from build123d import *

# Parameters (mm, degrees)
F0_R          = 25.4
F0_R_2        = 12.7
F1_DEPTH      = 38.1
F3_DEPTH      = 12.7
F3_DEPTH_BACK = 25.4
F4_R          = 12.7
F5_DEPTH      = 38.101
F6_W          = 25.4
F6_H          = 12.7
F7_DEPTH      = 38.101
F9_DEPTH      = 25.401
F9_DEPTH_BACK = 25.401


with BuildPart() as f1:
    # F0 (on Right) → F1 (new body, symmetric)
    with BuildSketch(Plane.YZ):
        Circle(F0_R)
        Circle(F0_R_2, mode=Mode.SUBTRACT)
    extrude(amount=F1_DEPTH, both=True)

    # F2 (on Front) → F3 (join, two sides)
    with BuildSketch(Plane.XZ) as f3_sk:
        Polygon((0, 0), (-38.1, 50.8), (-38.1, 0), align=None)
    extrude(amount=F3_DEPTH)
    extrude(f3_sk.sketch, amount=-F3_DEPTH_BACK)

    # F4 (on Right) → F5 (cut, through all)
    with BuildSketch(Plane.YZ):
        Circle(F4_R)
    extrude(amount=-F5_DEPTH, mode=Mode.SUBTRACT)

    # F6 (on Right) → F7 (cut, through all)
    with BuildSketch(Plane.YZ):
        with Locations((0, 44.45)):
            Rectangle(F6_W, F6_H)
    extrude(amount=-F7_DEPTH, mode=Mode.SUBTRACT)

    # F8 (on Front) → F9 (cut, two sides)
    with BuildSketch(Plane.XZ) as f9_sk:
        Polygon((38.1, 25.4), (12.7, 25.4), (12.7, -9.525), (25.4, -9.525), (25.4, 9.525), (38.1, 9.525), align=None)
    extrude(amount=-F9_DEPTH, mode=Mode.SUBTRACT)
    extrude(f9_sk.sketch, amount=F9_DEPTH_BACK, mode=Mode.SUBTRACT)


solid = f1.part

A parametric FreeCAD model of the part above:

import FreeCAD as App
import Part
import Sketcher

V = App.Vector
Q = App.Units.Quantity

doc = App.newDocument("Part")
body = doc.addObject("PartDesign::Body", "Body")

sketch1 = body.newObject("Sketcher::SketchObject", "Sketch")
sketch1.AttachmentSupport = (doc.getObject("YZ_Plane"), [""])
sketch1.MapMode = "FlatFace"
sketch1.addGeometry(Part.Circle(V(0, 0, 0), V(0, 0, 1), 25.4), False)
sketch1.addGeometry(Part.Circle(V(0, 0, 0), V(0, 0, 1), 12.7), False)
sketch1.addConstraint(Sketcher.Constraint("Coincident", 0, 3, -1, 1))
sketch1.addConstraint(Sketcher.Constraint("Coincident", 1, 3, -1, 1))
sketch1.addConstraint(Sketcher.Constraint("Diameter", 0, Q("2 in")))
sketch1.addConstraint(Sketcher.Constraint("Diameter", 1, Q("1 in")))
pad1 = body.newObject("PartDesign::Pad", "Pad")
pad1.Profile = sketch1
pad1.Length = Q("3 in")
pad1.Midplane = True

sketch2 = body.newObject("Sketcher::SketchObject", "Sketch001")
sketch2.AttachmentSupport = (doc.getObject("XZ_Plane"), [""])
sketch2.MapMode = "FlatFace"
sketch2.addGeometry(Part.LineSegment(V(0, 0, 0), V(-38.1, 50.8, 0)), False)
sketch2.addGeometry(Part.LineSegment(V(-38.1, 50.8, 0), V(-38.1, 0, 0)), False)
sketch2.addGeometry(Part.LineSegment(V(-38.1, 0, 0), V(0, 0, 0)), False)
sketch2.addConstraint(Sketcher.Constraint("Coincident", 0, 2, 1, 1))
sketch2.addConstraint(Sketcher.Constraint("Coincident", 1, 2, 2, 1))
sketch2.addConstraint(Sketcher.Constraint("Coincident", 2, 2, 0, 1))
sketch2.addConstraint(Sketcher.Constraint("Vertical", 1))
sketch2.addConstraint(Sketcher.Constraint("Horizontal", 2))
sketch2.addConstraint(Sketcher.Constraint("Coincident", 2, 2, -1, 1))
sketch2.addConstraint(Sketcher.Constraint("DistanceY", 1, 2, 1, 1, Q("2 in")))
sketch2.addConstraint(Sketcher.Constraint("DistanceX", 2, 1, 2, 2, Q("1.5 in")))
pad2 = body.newObject("PartDesign::Pad", "Pad001")
pad2.Profile = sketch2
pad2.Type = "TwoLengths"
pad2.Length = Q("0.5 in")
pad2.Length2 = Q("1 in")

sketch3 = body.newObject("Sketcher::SketchObject", "Sketch002")
sketch3.AttachmentSupport = (doc.getObject("YZ_Plane"), [""])
sketch3.MapMode = "FlatFace"
sketch3.addGeometry(Part.Circle(V(0, 0, 0), V(0, 0, 1), 12.7), False)
sketch3.addConstraint(Sketcher.Constraint("Coincident", 0, 3, -1, 1))
sketch3.addConstraint(Sketcher.Constraint("Diameter", 0, Q("1 in")))
pocket1 = body.newObject("PartDesign::Pocket", "Pocket")
pocket1.Profile = sketch3
pocket1.Type = "ThroughAll"

sketch4 = body.newObject("Sketcher::SketchObject", "Sketch003")
sketch4.AttachmentSupport = (doc.getObject("YZ_Plane"), [""])
sketch4.MapMode = "FlatFace"
sketch4.addGeometry(Part.LineSegment(V(-12.7, 50.8, 0), V(-12.7, 38.1, 0)), False)
sketch4.addGeometry(Part.LineSegment(V(-12.7, 38.1, 0), V(12.7, 38.1, 0)), False)
sketch4.addGeometry(Part.LineSegment(V(12.7, 38.1, 0), V(12.7, 50.8, 0)), False)
sketch4.addGeometry(Part.LineSegment(V(12.7, 50.8, 0), V(-12.7, 50.8, 0)), False)
sketch4.addConstraint(Sketcher.Constraint("Coincident", 0, 2, 1, 1))
sketch4.addConstraint(Sketcher.Constraint("Coincident", 1, 2, 2, 1))
sketch4.addConstraint(Sketcher.Constraint("Coincident", 2, 2, 3, 1))
sketch4.addConstraint(Sketcher.Constraint("Coincident", 3, 2, 0, 1))
sketch4.addConstraint(Sketcher.Constraint("Vertical", 0))
sketch4.addConstraint(Sketcher.Constraint("Horizontal", 1))
sketch4.addConstraint(Sketcher.Constraint("Vertical", 2))
sketch4.addConstraint(Sketcher.Constraint("Horizontal", 3))
sketch4.addConstraint(Sketcher.Constraint("DistanceX", 1, 1, 1, 2, Q("1 in")))
sketch4.addConstraint(Sketcher.Constraint("DistanceY", 0, 2, 0, 1, Q("0.5 in")))
sketch4.addConstraint(Sketcher.Constraint("DistanceY", -1, 1, 2, 2, Q("2 in")))
sketch4.addConstraint(Sketcher.Constraint("DistanceX", 0, 2, -1, 1, Q("0.5 in")))
pocket2 = body.newObject("PartDesign::Pocket", "Pocket001")
pocket2.Profile = sketch4
pocket2.Type = "ThroughAll"

sketch5 = body.newObject("Sketcher::SketchObject", "Sketch004")
sketch5.AttachmentSupport = (doc.getObject("XZ_Plane"), [""])
sketch5.MapMode = "FlatFace"
sketch5.addGeometry(Part.LineSegment(V(38.1, 25.4, 0), V(12.7, 25.4, 0)), False)
sketch5.addGeometry(Part.LineSegment(V(12.7, 25.4, 0), V(12.7, -9.525, 0)), False)
sketch5.addGeometry(Part.LineSegment(V(12.7, -9.525, 0), V(25.4, -9.525, 0)), False)
sketch5.addGeometry(Part.LineSegment(V(25.4, -9.525, 0), V(25.4, 9.525, 0)), False)
sketch5.addGeometry(Part.LineSegment(V(25.4, 9.525, 0), V(38.1, 9.525, 0)), False)
sketch5.addGeometry(Part.LineSegment(V(38.1, 9.525, 0), V(38.1, 25.4, 0)), False)
sketch5.addConstraint(Sketcher.Constraint("Coincident", 0, 2, 1, 1))
sketch5.addConstraint(Sketcher.Constraint("Coincident", 1, 2, 2, 1))
sketch5.addConstraint(Sketcher.Constraint("Coincident", 2, 2, 3, 1))
sketch5.addConstraint(Sketcher.Constraint("Coincident", 3, 2, 4, 1))
sketch5.addConstraint(Sketcher.Constraint("Coincident", 4, 2, 5, 1))
sketch5.addConstraint(Sketcher.Constraint("Coincident", 5, 2, 0, 1))
sketch5.addConstraint(Sketcher.Constraint("Horizontal", 0))
sketch5.addConstraint(Sketcher.Constraint("Vertical", 1))
sketch5.addConstraint(Sketcher.Constraint("Horizontal", 2))
sketch5.addConstraint(Sketcher.Constraint("Vertical", 3))
sketch5.addConstraint(Sketcher.Constraint("Horizontal", 4))
sketch5.addConstraint(Sketcher.Constraint("Vertical", 5))
sketch5.addConstraint(Sketcher.Constraint("Equal", 2, 4))
sketch5.addConstraint(Sketcher.Constraint("DistanceX", 0, 2, 0, 1, Q("1 in")))
sketch5.addConstraint(Sketcher.Constraint("DistanceY", -1, 1, 0, 2, Q("1 in")))
sketch5.addConstraint(Sketcher.Constraint("DistanceX", -1, 1, 2, 2, Q("1 in")))
sketch5.addConstraint(Sketcher.Constraint("DistanceY", 3, 1, 3, 2, Q("0.75 in")))
sketch5.addConstraint(Sketcher.Constraint("DistanceY", 1, 2, 1, 1, Q("1.375 in")))
pocket3 = body.newObject("PartDesign::Pocket", "Pocket002")
pocket3.Profile = sketch5
pocket3.Type = "ThroughAll"
pocket3.Midplane = True

doc.recompute()
